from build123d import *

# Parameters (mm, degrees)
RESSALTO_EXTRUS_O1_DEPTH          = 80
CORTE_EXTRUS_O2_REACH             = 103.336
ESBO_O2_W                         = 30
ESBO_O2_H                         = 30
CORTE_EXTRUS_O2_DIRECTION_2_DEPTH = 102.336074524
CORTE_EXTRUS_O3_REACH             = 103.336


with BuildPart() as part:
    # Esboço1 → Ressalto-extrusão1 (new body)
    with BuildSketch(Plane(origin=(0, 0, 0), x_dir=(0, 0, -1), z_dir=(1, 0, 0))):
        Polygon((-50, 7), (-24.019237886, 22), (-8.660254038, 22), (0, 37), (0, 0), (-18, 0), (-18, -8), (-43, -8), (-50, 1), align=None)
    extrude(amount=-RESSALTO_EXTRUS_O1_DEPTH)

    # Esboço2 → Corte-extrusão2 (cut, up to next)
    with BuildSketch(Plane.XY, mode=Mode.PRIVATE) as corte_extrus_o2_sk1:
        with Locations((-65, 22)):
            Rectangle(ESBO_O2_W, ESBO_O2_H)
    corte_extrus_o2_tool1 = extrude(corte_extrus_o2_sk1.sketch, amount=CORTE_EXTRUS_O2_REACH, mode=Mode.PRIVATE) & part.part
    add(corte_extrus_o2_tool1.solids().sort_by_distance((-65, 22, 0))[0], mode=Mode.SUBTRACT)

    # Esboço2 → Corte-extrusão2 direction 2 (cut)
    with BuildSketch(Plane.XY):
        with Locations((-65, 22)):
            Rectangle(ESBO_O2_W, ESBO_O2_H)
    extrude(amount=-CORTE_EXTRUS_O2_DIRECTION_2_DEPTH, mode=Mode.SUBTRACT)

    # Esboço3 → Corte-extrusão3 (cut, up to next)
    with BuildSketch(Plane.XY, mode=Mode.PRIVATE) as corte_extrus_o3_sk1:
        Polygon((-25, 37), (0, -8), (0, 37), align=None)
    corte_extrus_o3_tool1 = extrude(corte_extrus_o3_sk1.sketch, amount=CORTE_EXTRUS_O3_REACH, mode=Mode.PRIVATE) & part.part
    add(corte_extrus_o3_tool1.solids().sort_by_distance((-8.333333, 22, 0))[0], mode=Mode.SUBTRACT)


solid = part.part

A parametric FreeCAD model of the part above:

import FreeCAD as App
import Part
import Sketcher

V = App.Vector
Q = App.Units.Quantity


def add_polygon(sketch, points):
    """Adds a closed chain of lines whose ends are joined by coincident constraints."""
    first, n = sketch.GeometryCount, len(points)
    for a, b in zip(points, points[1:] + points[:1]):
        sketch.addGeometry(Part.LineSegment(App.Vector(*a, 0), App.Vector(*b, 0)), False)
    for i in range(n):
        sketch.addConstraint(Sketcher.Constraint("Coincident", first + i, 2, first + (i + 1) % n, 1))

doc = App.newDocument("Part")
params = doc.addObject("Spreadsheet::Sheet", "Params")
for row, (alias, value) in enumerate([
    ("sketch1_width", "6 mm"),
    ("sketch1_width2", "8 mm"),
    ("sketch1_width3", "37 mm"),
    ("sketch1_height", "25 mm"),
    ("sketch1_height2", "18 mm"),
    ("pad1_length", "80 mm"),
    ("sketch2_width", "30 mm"),
    ("pocket1_length", "50 mm"),
    ("sketch3_width", "30 mm"),
    ("pocket2_length", "102.336075 mm"),
    ("sketch4_width", "25 mm"),
    ("sketch4_height", "45 mm"),
    ("pocket3_length", "50 mm"),
], start=1):
    params.set(f"A{row}", alias)
    params.set(f"B{row}", "=" + value)
    params.setAlias(f"B{row}", alias)

body = doc.addObject("PartDesign::Body", "Body")

sketch1 = doc.addObject("Sketcher::SketchObject", "Sketch")
body.addObject(sketch1)
sketch1.AttachmentSupport = (doc.YZ_Plane, [""])
sketch1.MapMode = "FlatFace"
add_polygon(sketch1, [(22, 24.019238), (7, 50), (1, 50), (-8, 43), (-8, 18), (0, 18), (0, 0), (37, 0), (22, 8.660254)])
sketch1.addConstraint([
    Sketcher.Constraint("Horizontal", 1),
    Sketcher.Constraint("Vertical", 3),
    Sketcher.Constraint("Horizontal", 4),
    Sketcher.Constraint("Vertical", 5),
    Sketcher.Constraint("Horizontal", 6),
    Sketcher.Constraint("Vertical", 8),
    Sketcher.Constraint("Coincident", 5, 2, -1, 1),
    Sketcher.Constraint("DistanceX", 1, 2, 1, 1, Q("6 mm")),
    Sketcher.Constraint("DistanceX", 4, 1, 4, 2, Q("8 mm")),
    Sketcher.Constraint("DistanceX", 6, 1, 6, 2, Q("37 mm")),
    Sketcher.Constraint("DistanceY", 3, 2, 3, 1, Q("25 mm")),
    Sketcher.Constraint("DistanceY", 5, 2, 5, 1, Q("18 mm")),
    Sketcher.Constraint("Angle", 0, Q("120 deg")),
    Sketcher.Constraint("Angle", 7, Q("150 deg")),
    Sketcher.Constraint("Distance", 0, Q("30 mm")),
    Sketcher.Constraint("DistanceX", -1, 1, 0, 2, Q("7 mm")),
    Sketcher.Constraint("DistanceY", -1, 1, 0, 2, Q("50 mm")),
])
sketch1.setExpression("Constraints[16]", "Params.sketch1_width")
sketch1.setExpression("Constraints[17]", "Params.sketch1_width2")
sketch1.setExpression("Constraints[18]", "Params.sketch1_width3")
sketch1.setExpression("Constraints[19]", "Params.sketch1_height")
sketch1.setExpression("Constraints[20]", "Params.sketch1_height2")
pad1 = doc.addObject("PartDesign::Pad", "Pad")
body.addObject(pad1)
pad1.Profile = sketch1
pad1.setExpression("Length", "Params.pad1_length")
pad1.Reversed = True

sketch2 = doc.addObject("Sketcher::SketchObject", "Sketch001")
body.addObject(sketch2)
sketch2.AttachmentSupport = (doc.XY_Plane, [""])
sketch2.MapMode = "FlatFace"
add_polygon(sketch2, [(-80, 37), (-80, 7), (-50, 7), (-50, 37)])
sketch2.addConstraint([
    Sketcher.Constraint("Vertical", 0),
    Sketcher.Constraint("Horizontal", 1),
    Sketcher.Constraint("Vertical", 2),
    Sketcher.Constraint("Horizontal", 3),
    Sketcher.Constraint("Equal", 3, 0),
    Sketcher.Constraint("DistanceX", 1, 1, 1, 2, Q("30 mm")),
    Sketcher.Constraint("DistanceX", 0, 2, -1, 1, Q("80 mm")),
    Sketcher.Constraint("DistanceY", -1, 1, 0, 2, Q("7 mm")),
])
sketch2.setExpression("Constraints[9]", "Params.sketch2_width")
pocket1 = doc.addObject("PartDesign::Pocket", "Pocket")
body.addObject(pocket1)
pocket1.Profile = sketch2
pocket1.setExpression("Length", "Params.pocket1_length")
pocket1.Reversed = True

sketch3 = doc.addObject("Sketcher::SketchObject", "Sketch002")
body.addObject(sketch3)
sketch3.AttachmentSupport = (doc.XY_Plane, [""])
sketch3.MapMode = "FlatFace"
add_polygon(sketch3, [(-80, 37), (-80, 7), (-50, 7), (-50, 37)])
sketch3.addConstraint([
    Sketcher.Constraint("Vertical", 0),
    Sketcher.Constraint("Horizontal", 1),
    Sketcher.Constraint("Vertical", 2),
    Sketcher.Constraint("Horizontal", 3),
    Sketcher.Constraint("Equal", 3, 0),
    Sketcher.Constraint("DistanceX", 1, 1, 1, 2, Q("30 mm")),
    Sketcher.Constraint("DistanceX", 0, 2, -1, 1, Q("80 mm")),
    Sketcher.Constraint("DistanceY", -1, 1, 0, 2, Q("7 mm")),
])
sketch3.setExpression("Constraints[9]", "Params.sketch3_width")
pocket2 = doc.addObject("PartDesign::Pocket", "Pocket001")
body.addObject(pocket2)
pocket2.Profile = sketch3
pocket2.setExpression("Length", "Params.pocket2_length")

sketch4 = doc.addObject("Sketcher::SketchObject", "Sketch003")
body.addObject(sketch4)
sketch4.AttachmentSupport = (doc.XY_Plane, [""])
sketch4.MapMode = "FlatFace"
add_polygon(sketch4, [(-25, 37), (0, -8), (0, 37)])
sketch4.addConstraint([
    Sketcher.Constraint("Vertical", 1),
    Sketcher.Constraint("Horizontal", 2),
    Sketcher.Constraint("PointOnObject", 0, 2, -2),
    Sketcher.Constraint("DistanceX", 2, 2, 2, 1, Q("25 mm")),
    Sketcher.Constraint("DistanceY", 1, 1, 1, 2, Q("45 mm")),
    Sketcher.Constraint("DistanceY", 0, 2, -1, 1, Q("8 mm")),
])
sketch4.setExpression("Constraints[6]", "Params.sketch4_width")
sketch4.setExpression("Constraints[7]", "Params.sketch4_height")
pocket3 = doc.addObject("PartDesign::Pocket", "Pocket002")
body.addObject(pocket3)
pocket3.Profile = sketch4
pocket3.setExpression("Length", "Params.pocket3_length")
pocket3.Reversed = True

doc.recompute()
